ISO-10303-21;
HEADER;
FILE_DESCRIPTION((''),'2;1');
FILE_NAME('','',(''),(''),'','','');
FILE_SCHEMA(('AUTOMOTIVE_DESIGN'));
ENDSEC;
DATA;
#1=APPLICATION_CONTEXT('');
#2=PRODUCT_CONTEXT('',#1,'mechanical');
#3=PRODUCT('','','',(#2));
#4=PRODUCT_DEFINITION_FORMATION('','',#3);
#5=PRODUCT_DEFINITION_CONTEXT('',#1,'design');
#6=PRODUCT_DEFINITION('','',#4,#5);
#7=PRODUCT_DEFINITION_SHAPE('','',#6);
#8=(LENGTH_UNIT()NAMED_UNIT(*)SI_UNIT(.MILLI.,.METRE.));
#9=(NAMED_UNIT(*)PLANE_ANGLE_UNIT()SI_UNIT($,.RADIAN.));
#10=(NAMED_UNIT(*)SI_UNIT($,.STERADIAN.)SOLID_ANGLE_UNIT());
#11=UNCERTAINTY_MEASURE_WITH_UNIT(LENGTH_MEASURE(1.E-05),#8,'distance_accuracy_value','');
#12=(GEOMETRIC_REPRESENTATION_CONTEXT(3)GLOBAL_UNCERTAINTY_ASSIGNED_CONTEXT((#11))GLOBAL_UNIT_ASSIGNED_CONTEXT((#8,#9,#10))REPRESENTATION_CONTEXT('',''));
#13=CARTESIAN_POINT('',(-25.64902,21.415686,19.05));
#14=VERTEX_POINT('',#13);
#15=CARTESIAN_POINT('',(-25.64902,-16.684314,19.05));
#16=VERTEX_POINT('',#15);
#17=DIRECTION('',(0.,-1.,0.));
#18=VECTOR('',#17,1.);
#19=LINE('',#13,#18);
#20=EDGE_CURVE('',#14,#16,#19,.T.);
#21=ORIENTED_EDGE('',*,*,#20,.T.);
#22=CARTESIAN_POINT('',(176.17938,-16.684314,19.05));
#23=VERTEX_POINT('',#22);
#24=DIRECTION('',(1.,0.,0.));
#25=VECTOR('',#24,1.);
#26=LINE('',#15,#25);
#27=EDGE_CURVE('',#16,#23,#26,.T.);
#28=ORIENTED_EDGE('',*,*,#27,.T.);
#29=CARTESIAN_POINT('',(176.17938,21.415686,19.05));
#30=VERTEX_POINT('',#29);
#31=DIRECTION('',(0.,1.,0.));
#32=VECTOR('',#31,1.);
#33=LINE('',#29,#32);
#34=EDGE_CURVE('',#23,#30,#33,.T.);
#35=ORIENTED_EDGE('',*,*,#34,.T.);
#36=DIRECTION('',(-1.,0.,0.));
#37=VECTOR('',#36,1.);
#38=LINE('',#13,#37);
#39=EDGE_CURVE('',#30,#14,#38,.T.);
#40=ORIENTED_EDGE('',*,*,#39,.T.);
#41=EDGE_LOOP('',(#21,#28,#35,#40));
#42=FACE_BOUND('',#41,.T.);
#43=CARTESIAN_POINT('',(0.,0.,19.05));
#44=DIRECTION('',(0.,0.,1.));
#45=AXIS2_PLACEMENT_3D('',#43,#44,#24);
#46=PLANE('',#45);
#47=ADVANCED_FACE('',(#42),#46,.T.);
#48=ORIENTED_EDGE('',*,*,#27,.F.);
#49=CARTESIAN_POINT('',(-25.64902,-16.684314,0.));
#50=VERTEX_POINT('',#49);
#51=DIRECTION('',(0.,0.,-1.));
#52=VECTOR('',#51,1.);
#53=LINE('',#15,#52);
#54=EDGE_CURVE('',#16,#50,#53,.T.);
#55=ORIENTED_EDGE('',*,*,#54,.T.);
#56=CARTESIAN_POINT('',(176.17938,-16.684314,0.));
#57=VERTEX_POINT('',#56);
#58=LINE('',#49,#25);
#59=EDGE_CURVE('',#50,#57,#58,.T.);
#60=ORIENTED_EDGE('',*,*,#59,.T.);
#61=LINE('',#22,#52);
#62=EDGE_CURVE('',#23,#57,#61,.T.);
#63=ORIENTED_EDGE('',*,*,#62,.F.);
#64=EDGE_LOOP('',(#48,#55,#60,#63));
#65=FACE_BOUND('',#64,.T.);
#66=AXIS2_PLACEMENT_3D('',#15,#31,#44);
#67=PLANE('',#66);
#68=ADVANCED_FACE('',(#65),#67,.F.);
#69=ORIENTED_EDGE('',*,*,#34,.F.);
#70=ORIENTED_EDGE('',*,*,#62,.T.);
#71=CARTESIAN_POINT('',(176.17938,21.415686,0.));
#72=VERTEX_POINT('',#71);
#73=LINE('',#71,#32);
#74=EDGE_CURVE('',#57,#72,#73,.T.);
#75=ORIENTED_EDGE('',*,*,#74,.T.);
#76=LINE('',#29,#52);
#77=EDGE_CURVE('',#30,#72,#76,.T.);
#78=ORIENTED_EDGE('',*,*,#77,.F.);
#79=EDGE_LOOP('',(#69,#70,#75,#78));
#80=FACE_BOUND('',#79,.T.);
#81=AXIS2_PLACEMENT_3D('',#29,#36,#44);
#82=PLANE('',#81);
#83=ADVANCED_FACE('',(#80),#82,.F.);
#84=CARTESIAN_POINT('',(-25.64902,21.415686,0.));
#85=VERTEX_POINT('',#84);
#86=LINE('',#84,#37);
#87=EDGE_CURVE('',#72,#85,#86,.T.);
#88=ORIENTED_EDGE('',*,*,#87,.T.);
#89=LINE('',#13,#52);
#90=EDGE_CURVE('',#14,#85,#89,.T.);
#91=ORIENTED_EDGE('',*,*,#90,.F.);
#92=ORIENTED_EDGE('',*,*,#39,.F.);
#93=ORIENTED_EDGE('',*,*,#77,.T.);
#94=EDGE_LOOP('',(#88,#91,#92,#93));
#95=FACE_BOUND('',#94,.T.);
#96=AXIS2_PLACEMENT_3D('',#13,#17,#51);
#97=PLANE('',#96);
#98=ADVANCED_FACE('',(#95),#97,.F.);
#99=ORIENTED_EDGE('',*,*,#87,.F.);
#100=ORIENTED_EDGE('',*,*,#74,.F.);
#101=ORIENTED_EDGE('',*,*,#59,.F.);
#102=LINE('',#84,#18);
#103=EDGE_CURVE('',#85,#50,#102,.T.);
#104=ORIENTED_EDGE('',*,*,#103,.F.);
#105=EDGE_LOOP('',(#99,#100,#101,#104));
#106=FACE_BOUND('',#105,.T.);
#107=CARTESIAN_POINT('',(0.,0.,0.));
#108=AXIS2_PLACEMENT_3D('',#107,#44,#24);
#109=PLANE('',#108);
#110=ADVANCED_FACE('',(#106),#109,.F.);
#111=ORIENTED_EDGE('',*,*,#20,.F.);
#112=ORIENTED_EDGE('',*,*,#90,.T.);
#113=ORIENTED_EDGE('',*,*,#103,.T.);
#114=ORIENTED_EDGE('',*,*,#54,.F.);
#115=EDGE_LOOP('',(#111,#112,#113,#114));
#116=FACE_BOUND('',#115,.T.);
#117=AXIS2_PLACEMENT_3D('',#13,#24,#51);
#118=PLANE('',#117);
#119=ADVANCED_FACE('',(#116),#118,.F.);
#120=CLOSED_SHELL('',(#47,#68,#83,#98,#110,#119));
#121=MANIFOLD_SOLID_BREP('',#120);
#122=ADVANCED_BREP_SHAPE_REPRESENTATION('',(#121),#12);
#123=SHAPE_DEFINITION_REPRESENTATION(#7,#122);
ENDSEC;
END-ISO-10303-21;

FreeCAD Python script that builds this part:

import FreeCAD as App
import Part
import Sketcher
Q = App.Units.Quantity

doc = App.newDocument("Part")
body = doc.addObject("PartDesign::Body", "Body")

# Sketch on XY plane
sketch1 = body.newObject("Sketcher::SketchObject", "Sketch")
sketch1.AttachmentSupport = (doc.getObject("XY_Plane"), [""])
sketch1.MapMode = "FlatFace"
sketch1.addGeometry(Part.LineSegment(App.Vector(-25.64902, 21.415686, 0), App.Vector(-25.64902, -16.684314, 0)), False)
sketch1.addGeometry(Part.LineSegment(App.Vector(-25.64902, -16.684314, 0), App.Vector(176.17938, -16.684314, 0)), False)
sketch1.addGeometry(Part.LineSegment(App.Vector(176.17938, -16.684314, 0), App.Vector(176.17938, 21.415686, 0)), False)
sketch1.addGeometry(Part.LineSegment(App.Vector(176.17938, 21.415686, 0), App.Vector(-25.64902, 21.415686, 0)), False)
sketch1.addConstraint(Sketcher.Constraint("Coincident", 0, 2, 1, 1))
sketch1.addConstraint(Sketcher.Constraint("Coincident", 1, 2, 2, 1))
sketch1.addConstraint(Sketcher.Constraint("Coincident", 2, 2, 3, 1))
sketch1.addConstraint(Sketcher.Constraint("Coincident", 3, 2, 0, 1))
sketch1.addConstraint(Sketcher.Constraint("Vertical", 0))
sketch1.addConstraint(Sketcher.Constraint("Horizontal", 1))
sketch1.addConstraint(Sketcher.Constraint("Vertical", 2))
sketch1.addConstraint(Sketcher.Constraint("Horizontal", 3))
sketch1.addConstraint(Sketcher.Constraint("DistanceY", 0, 2, 0, 1, Q("1.5 in")))
sketch1.addConstraint(Sketcher.Constraint("DistanceX", 1, 1, 1, 2, Q("7.946 in")))
sketch1.addConstraint(Sketcher.Constraint("DistanceX", 0, 2, -1, 1, Q("25.64902 mm")))
sketch1.addConstraint(Sketcher.Constraint("DistanceY", 0, 2, -1, 1, Q("16.684314 mm")))
pad1 = body.newObject("PartDesign::Pad", "Pad")
pad1.Profile = sketch1
pad1.Length = Q("0.75 in")

doc.recompute()
